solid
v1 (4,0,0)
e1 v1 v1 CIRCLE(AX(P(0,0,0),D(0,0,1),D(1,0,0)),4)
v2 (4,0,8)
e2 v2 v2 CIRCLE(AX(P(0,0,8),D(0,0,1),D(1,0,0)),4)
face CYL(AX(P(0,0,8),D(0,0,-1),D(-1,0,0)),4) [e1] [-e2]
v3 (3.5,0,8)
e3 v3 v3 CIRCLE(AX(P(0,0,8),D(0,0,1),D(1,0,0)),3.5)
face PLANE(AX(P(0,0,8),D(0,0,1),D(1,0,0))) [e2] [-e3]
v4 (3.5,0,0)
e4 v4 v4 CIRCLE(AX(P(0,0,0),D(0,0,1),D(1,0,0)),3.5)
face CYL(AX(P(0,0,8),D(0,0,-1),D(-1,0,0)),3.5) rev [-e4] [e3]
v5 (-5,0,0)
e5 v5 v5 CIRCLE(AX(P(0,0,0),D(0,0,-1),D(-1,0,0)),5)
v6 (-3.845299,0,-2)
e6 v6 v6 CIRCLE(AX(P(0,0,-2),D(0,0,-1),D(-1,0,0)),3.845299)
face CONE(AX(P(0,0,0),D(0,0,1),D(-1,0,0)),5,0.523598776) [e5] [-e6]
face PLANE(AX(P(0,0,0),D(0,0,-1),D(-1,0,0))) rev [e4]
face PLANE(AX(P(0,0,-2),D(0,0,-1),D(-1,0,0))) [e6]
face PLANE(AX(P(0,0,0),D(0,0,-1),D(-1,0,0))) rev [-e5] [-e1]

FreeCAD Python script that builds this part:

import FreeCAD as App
import Part
import Sketcher

V = App.Vector
Q = App.Units.Quantity

doc = App.newDocument("Part")
body = doc.addObject("PartDesign::Body", "Body")

sketch1 = body.newObject("Sketcher::SketchObject", "Sketch")
sketch1.AttachmentSupport = (doc.getObject("XY_Plane"), [""])
sketch1.MapMode = "FlatFace"
sketch1.addGeometry(Part.Circle(V(0, 0, 0), V(0, 0, 1), 4), False)
sketch1.addGeometry(Part.Circle(V(0, 0, 0), V(0, 0, 1), 3.5), False)
sketch1.addConstraint(Sketcher.Constraint("Coincident", 0, 3, -1, 1))
sketch1.addConstraint(Sketcher.Constraint("Coincident", 1, 3, -1, 1))
sketch1.addConstraint(Sketcher.Constraint("Diameter", 0, Q("8 mm")))
sketch1.addConstraint(Sketcher.Constraint("Diameter", 1, Q("7 mm")))
pad1 = body.newObject("PartDesign::Pad", "Pad")
pad1.Profile = sketch1
pad1.Length = 8

sketch2 = body.newObject("Sketcher::SketchObject", "Sketch001")
sketch2.AttachmentSupport = (doc.getObject("XY_Plane"), [""])
sketch2.MapMode = "FlatFace"
sketch2.addGeometry(Part.Circle(V(0, 0, 0), V(0, 0, 1), 5), False)
sketch2.addConstraint(Sketcher.Constraint("Coincident", 0, 3, -1, 1))
sketch2.addConstraint(Sketcher.Constraint("Diameter", 0, Q("10 mm")))
pad2 = body.newObject("PartDesign::Pad", "Pad001")
pad2.Profile = sketch2
pad2.Length = 2
pad2.Reversed = True
pad2.TaperAngle = -30

doc.recompute()
